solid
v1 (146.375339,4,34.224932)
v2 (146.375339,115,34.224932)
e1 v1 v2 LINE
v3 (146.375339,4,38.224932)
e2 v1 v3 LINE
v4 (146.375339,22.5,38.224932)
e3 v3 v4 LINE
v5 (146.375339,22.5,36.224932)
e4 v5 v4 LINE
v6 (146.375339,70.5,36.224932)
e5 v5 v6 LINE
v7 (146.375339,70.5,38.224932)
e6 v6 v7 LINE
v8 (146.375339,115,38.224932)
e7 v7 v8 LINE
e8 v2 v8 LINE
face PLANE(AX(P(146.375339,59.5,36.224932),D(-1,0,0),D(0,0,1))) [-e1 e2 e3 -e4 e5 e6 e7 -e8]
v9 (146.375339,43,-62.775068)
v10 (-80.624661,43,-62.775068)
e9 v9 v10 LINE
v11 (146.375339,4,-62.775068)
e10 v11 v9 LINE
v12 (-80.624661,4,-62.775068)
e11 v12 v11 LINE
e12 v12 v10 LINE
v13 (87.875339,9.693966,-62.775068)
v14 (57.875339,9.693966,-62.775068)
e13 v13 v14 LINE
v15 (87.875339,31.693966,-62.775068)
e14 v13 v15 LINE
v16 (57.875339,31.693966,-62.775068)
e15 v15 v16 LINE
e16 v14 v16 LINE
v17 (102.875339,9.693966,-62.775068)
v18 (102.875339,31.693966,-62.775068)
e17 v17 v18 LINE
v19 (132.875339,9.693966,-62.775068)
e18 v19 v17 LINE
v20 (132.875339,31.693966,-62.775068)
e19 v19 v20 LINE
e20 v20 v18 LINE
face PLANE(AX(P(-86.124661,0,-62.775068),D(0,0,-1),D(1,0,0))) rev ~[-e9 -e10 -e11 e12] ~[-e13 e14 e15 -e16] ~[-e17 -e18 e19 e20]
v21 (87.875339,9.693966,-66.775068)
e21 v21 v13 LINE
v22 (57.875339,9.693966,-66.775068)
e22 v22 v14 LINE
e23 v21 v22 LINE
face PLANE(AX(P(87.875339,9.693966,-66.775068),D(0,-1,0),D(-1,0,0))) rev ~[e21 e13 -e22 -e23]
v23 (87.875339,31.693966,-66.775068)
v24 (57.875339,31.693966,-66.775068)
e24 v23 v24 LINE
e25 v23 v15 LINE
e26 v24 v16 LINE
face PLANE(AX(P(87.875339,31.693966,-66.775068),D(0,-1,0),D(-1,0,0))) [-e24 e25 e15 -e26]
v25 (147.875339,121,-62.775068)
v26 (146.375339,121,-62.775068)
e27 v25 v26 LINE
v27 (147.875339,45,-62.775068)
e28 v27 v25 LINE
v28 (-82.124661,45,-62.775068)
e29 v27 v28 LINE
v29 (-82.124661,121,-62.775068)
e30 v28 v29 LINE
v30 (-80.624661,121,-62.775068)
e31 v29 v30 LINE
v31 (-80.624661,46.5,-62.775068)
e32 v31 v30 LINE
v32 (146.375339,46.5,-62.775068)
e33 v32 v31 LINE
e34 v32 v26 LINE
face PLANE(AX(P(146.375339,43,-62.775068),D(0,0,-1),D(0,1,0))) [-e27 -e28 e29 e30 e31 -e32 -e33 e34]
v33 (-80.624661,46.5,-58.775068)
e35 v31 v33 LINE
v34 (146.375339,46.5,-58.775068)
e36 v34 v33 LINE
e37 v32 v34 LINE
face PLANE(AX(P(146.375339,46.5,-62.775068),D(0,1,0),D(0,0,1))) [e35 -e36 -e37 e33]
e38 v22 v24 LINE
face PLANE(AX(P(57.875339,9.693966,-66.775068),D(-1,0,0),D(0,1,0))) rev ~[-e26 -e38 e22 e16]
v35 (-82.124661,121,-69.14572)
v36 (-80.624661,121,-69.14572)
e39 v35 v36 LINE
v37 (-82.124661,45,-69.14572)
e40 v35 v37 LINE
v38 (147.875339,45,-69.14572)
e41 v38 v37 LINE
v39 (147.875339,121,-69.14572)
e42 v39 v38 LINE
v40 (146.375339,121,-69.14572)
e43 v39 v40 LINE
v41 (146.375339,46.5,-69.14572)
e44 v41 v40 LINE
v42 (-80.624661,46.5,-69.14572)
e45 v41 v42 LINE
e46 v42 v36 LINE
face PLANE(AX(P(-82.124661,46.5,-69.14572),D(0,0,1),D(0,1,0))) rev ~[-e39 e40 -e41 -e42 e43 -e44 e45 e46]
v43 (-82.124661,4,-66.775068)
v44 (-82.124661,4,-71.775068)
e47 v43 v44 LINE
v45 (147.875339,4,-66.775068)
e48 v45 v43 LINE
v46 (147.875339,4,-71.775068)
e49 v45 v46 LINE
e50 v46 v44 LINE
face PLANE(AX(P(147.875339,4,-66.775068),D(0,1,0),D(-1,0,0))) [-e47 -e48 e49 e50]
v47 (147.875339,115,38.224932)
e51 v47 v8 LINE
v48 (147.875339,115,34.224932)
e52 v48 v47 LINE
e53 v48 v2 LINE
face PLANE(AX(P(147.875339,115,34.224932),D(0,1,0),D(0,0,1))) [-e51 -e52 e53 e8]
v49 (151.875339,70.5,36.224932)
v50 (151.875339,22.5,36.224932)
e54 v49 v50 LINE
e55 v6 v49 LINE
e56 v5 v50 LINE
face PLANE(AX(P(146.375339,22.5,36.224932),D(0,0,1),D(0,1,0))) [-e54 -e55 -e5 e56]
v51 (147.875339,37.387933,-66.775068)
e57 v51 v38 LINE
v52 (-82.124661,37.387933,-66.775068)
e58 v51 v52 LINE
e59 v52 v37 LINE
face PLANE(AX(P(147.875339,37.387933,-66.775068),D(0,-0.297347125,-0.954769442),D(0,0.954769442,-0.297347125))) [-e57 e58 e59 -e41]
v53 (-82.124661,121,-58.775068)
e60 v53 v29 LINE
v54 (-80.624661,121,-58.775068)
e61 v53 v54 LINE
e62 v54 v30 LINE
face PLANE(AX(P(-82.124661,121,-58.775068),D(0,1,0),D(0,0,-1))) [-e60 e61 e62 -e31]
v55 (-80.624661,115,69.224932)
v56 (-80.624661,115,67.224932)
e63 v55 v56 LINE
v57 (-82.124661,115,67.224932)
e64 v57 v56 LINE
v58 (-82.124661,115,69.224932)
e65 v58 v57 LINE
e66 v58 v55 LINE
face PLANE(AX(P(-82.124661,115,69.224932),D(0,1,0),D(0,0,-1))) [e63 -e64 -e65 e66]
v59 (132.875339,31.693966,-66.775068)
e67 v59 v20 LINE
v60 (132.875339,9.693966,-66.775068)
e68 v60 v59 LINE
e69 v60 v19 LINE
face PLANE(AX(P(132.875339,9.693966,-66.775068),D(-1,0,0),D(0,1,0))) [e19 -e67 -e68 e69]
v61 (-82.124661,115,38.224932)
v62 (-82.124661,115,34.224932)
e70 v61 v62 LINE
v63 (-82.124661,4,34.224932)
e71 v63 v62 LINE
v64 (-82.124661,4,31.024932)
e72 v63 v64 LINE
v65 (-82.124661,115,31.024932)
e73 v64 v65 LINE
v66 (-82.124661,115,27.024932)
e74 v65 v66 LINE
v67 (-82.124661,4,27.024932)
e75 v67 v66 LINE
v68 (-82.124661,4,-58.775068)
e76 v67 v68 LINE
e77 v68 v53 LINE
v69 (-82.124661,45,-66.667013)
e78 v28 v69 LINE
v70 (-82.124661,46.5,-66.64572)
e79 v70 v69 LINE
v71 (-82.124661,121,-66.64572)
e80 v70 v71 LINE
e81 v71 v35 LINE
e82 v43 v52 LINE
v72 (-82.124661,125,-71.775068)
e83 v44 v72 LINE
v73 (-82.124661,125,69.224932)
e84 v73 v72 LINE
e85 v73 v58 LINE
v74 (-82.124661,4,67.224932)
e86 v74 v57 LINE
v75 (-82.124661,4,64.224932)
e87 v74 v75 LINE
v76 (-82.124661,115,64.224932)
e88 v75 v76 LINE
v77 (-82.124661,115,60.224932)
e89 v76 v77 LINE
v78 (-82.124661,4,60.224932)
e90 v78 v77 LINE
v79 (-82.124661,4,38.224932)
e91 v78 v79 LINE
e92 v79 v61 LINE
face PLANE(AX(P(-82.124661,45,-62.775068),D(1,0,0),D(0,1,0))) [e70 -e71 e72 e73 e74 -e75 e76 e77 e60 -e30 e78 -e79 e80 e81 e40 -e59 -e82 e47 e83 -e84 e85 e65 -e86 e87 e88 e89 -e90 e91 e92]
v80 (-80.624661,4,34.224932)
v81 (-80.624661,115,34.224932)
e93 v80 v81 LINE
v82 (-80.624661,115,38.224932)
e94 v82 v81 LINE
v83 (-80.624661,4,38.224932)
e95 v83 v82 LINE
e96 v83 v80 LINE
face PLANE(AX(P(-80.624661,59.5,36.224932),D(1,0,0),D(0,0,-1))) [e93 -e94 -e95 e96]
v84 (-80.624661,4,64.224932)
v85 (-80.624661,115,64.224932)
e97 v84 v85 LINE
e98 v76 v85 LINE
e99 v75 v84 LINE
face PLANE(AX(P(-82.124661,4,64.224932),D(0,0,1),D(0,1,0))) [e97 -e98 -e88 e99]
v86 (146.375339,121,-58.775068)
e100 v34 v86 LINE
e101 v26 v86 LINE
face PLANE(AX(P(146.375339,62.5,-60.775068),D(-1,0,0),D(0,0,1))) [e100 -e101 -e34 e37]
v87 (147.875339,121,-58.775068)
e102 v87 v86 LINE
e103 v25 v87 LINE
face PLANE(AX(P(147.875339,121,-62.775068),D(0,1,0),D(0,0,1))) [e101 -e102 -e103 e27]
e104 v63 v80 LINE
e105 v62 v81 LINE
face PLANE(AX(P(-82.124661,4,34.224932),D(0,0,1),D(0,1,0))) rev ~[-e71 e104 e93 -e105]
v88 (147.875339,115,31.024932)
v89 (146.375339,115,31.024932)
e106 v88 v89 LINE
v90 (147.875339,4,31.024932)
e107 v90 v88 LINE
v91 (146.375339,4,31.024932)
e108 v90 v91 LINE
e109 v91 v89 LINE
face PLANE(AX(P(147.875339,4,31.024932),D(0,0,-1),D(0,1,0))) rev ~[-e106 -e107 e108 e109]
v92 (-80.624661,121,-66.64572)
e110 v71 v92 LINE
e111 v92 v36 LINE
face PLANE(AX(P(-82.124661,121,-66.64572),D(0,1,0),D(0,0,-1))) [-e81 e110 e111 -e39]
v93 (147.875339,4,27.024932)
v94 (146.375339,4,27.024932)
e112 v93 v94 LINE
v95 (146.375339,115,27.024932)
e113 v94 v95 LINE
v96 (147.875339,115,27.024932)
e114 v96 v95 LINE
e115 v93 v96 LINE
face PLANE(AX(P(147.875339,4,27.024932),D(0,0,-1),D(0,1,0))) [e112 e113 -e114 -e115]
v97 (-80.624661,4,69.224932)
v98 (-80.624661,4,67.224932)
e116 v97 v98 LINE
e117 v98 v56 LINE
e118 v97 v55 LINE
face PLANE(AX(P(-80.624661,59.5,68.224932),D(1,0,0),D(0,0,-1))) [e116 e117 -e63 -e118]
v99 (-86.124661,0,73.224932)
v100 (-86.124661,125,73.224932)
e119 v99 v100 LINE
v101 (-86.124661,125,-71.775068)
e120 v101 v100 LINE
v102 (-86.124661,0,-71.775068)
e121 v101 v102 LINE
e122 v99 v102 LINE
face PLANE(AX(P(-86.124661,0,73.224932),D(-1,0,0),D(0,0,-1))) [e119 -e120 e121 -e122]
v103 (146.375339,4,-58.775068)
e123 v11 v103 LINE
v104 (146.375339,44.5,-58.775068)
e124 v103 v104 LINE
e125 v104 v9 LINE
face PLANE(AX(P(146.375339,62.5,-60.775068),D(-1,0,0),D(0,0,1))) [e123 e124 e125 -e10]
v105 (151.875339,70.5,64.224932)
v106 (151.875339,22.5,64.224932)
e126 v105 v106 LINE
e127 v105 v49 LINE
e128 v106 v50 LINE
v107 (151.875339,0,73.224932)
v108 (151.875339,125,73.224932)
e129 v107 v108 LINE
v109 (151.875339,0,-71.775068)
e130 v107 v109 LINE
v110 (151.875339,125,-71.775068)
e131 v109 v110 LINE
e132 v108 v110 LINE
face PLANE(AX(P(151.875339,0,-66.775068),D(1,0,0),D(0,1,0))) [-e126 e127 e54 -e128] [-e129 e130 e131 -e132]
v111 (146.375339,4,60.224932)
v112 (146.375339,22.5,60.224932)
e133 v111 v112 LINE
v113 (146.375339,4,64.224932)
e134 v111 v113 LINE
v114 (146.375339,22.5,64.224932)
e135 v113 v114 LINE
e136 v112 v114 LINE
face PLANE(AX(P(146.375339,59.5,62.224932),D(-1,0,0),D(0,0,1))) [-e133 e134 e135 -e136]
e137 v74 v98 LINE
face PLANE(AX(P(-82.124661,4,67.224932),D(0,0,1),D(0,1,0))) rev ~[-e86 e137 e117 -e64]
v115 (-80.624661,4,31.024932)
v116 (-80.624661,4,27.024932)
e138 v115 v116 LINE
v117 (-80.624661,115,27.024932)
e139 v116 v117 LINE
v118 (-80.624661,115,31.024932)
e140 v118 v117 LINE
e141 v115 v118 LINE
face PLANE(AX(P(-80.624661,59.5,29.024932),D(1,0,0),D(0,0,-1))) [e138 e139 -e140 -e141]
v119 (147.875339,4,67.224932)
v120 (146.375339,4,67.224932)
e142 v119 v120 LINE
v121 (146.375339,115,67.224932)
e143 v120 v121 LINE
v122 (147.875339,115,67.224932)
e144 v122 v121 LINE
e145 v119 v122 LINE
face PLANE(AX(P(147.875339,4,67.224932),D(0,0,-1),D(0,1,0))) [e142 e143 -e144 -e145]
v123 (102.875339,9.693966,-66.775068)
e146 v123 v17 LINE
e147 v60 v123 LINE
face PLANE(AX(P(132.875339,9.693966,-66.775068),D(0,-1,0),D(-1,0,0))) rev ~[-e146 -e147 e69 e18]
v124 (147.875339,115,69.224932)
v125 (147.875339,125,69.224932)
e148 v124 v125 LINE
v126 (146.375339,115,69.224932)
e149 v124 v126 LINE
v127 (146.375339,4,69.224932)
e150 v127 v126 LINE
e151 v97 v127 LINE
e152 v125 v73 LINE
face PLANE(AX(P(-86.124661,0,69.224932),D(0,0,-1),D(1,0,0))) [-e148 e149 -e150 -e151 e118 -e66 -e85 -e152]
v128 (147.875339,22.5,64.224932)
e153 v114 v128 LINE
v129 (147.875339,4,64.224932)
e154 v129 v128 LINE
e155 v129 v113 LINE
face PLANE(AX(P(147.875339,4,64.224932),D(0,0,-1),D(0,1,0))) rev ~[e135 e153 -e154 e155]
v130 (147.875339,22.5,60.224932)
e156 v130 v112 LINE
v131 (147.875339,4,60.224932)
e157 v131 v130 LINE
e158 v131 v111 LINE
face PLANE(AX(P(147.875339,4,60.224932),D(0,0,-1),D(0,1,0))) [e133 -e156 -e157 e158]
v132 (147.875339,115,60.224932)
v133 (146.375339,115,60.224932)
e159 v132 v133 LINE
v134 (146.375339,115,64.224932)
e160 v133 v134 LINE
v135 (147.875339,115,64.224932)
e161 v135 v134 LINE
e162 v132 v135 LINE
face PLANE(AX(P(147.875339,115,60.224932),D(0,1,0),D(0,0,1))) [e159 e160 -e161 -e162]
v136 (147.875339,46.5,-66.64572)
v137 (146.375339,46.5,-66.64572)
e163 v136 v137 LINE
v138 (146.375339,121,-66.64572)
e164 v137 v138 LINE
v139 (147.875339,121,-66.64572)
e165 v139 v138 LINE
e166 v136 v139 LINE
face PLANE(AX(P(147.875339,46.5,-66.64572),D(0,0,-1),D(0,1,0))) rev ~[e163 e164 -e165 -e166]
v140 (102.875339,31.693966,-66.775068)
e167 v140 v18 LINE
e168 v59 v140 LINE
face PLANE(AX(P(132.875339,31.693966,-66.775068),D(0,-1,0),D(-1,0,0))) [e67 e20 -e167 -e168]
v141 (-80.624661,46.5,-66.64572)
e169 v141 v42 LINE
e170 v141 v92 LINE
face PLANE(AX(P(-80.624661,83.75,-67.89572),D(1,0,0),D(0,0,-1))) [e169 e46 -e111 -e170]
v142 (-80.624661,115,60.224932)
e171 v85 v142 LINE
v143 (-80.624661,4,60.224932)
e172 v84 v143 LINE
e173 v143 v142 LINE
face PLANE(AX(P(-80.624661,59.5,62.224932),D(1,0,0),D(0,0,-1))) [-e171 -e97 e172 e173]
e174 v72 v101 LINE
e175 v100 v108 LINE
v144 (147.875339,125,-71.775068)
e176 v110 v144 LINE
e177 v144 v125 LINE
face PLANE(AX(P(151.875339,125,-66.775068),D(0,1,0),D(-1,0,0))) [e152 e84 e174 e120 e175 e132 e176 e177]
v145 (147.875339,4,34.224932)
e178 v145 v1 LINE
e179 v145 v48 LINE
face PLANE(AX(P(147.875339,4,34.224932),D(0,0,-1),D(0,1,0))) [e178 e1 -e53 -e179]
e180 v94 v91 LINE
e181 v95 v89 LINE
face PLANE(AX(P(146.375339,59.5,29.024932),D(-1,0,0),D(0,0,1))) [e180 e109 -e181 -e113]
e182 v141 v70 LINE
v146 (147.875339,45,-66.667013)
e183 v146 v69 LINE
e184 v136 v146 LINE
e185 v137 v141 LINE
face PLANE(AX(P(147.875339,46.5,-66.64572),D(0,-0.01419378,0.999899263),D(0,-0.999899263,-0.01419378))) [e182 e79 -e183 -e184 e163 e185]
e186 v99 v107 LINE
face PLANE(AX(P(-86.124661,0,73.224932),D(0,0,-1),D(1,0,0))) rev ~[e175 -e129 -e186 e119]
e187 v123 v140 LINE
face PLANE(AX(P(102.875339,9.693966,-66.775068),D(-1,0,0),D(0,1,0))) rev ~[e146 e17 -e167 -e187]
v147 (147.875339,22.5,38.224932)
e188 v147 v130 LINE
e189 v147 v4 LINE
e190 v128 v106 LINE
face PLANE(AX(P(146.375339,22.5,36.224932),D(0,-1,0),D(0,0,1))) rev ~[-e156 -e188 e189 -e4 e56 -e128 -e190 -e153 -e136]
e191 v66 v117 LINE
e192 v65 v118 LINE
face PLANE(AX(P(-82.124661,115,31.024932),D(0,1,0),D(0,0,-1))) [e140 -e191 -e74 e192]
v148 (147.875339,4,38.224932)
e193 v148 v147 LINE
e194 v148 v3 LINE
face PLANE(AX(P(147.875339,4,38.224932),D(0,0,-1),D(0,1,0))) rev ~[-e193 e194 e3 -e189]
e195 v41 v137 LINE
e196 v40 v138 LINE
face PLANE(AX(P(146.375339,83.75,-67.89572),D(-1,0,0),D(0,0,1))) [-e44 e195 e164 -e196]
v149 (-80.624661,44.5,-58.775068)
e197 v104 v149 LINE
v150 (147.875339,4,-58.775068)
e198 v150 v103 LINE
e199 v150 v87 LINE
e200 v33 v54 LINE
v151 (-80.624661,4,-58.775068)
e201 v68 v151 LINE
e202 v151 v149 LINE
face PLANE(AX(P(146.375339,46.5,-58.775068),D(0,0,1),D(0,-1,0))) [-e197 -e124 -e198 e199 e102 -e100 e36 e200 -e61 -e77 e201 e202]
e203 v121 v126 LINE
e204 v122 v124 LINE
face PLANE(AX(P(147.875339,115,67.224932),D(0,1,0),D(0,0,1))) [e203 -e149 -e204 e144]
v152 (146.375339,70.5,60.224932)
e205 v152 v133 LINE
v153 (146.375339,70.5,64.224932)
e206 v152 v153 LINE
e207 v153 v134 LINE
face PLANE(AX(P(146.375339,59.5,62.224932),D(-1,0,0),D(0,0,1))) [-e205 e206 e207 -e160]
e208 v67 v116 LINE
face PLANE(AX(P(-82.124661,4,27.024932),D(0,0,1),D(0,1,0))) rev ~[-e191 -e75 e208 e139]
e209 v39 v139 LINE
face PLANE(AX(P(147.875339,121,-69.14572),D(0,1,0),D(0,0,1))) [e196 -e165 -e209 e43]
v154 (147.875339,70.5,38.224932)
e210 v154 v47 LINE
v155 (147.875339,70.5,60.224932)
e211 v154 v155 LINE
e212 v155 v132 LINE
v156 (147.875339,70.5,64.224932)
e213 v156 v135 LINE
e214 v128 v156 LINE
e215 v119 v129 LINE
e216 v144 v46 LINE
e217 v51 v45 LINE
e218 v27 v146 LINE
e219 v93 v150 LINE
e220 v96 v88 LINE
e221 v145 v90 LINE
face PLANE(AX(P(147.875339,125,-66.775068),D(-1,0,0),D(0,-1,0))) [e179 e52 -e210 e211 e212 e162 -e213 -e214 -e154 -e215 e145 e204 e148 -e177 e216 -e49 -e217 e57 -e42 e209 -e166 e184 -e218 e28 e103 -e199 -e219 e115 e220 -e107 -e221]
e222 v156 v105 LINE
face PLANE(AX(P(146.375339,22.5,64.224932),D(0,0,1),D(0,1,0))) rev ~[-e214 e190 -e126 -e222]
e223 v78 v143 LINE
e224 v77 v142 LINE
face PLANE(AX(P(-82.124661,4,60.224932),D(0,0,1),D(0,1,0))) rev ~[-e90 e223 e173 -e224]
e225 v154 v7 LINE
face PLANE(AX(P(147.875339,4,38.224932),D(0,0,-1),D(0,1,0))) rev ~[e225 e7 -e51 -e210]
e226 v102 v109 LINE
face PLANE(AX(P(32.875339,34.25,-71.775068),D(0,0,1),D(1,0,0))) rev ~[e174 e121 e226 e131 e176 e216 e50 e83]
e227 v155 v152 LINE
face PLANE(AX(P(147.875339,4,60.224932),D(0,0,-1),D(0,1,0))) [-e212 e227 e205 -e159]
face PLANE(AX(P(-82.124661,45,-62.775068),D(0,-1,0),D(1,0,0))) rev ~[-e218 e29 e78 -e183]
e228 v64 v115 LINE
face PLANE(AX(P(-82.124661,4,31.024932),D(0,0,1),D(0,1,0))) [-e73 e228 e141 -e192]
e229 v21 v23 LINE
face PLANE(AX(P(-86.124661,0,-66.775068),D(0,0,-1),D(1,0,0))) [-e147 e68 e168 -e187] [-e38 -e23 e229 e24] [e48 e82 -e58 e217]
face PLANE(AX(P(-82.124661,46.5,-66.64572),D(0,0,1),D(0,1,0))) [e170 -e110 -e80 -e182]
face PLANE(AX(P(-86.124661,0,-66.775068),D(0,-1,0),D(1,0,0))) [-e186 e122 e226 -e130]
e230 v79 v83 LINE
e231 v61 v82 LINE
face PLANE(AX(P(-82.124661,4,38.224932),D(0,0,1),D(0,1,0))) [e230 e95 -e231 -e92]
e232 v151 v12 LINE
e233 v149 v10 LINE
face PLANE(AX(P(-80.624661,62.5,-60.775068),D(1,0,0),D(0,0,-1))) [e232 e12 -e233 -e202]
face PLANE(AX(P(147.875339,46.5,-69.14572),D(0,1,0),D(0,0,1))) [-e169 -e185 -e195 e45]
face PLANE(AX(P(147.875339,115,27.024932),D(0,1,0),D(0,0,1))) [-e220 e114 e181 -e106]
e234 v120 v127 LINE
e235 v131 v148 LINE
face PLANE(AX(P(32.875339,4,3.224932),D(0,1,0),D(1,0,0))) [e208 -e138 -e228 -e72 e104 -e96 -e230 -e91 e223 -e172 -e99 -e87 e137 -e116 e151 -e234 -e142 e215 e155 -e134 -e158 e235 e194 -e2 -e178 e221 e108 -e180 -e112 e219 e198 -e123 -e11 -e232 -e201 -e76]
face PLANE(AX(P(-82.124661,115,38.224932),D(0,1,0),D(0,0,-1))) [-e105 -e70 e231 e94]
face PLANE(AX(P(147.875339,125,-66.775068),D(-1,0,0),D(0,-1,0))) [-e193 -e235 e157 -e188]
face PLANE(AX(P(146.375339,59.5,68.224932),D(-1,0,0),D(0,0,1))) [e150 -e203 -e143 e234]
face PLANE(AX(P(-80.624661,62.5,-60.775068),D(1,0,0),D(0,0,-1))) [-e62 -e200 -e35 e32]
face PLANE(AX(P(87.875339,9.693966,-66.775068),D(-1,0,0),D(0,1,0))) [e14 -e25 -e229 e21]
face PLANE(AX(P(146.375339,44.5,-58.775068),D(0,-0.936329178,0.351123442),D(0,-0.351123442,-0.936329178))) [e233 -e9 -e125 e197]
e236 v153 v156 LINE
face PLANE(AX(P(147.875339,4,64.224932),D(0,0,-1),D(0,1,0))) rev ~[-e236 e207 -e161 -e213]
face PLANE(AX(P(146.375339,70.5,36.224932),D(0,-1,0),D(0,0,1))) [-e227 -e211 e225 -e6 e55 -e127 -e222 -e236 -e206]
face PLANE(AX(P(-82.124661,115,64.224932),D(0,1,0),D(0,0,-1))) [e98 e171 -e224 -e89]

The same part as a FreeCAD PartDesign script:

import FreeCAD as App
import Part
import Sketcher

V = App.Vector
Q = App.Units.Quantity


def faces_at(feature, points):
    """Names of the faces that lie closest to the given points."""
    faces = feature.Shape.Faces
    near = lambda p: min(range(len(faces)), key=lambda i: faces[i].distToShape(Part.Vertex(*p))[0])
    return sorted({f"Face{near(p) + 1}" for p in points})


def add_polygon(sketch, points):
    """Adds a closed chain of lines whose ends are joined by coincident constraints."""
    first, n = sketch.GeometryCount, len(points)
    for a, b in zip(points, points[1:] + points[:1]):
        sketch.addGeometry(Part.LineSegment(App.Vector(*a, 0), App.Vector(*b, 0)), False)
    for i in range(n):
        sketch.addConstraint(Sketcher.Constraint("Coincident", first + i, 2, first + (i + 1) % n, 1))

doc = App.newDocument("Part")
params = doc.addObject("Spreadsheet::Sheet", "Params")
for row, (alias, value) in enumerate([
    ("sketch1_width", "238 mm"),
    ("sketch1_height", "140 mm"),
    ("pad1_length", "125 mm"),
    ("thickness_wall", "4 mm"),
    ("sketch2_width", "230 mm"),
    ("sketch2_height", "80 mm"),
    ("pocket1_length", "120 mm"),
    ("sketch3_width", "117 mm"),
    ("sketch3_height", "4 mm"),
    ("pad2_length", "1.5 mm"),
    ("sketch4_width", "117 mm"),
    ("sketch4_height", "4 mm"),
    ("pad3_length", "1.5 mm"),
    ("sketch5_width", "4 mm"),
    ("sketch5_width2", "238 mm"),
    ("sketch5_height", "125 mm"),
    ("sketch5_height2", "121 mm"),
    ("pad4_length", "5 mm"),
    ("sketch6_width", "1.5 mm"),
    ("sketch6_height", "2.5 mm"),
    ("pad5_length", "230 mm"),
    ("sketch7_width", "2 mm"),
    ("sketch7_height", "4 mm"),
    ("sketch7_width2", "3.5 mm"),
    ("pad6_length", "227 mm"),
    ("sketch8_width", "74.5 mm"),
    ("sketch8_height", "2.5 mm"),
    ("pad7_length", "1.5 mm"),
    ("sketch9_width", "74.5 mm"),
    ("sketch9_height", "2.5 mm"),
    ("pad8_length", "1.5 mm"),
    ("sketch10_width", "111 mm"),
    ("sketch10_height", "4 mm"),
    ("pad9_length", "1.5 mm"),
    ("sketch11_width", "111 mm"),
    ("sketch11_height", "2 mm"),
    ("sketch11_height2", "4 mm"),
    ("pad10_length", "1.5 mm"),
    ("sketch12_width", "48 mm"),
    ("sketch12_height", "28 mm"),
    ("pocket2_length", "18 mm"),
    ("sketch13_width", "30 mm"),
    ("sketch13_height", "22 mm"),
    ("pocket3_length", "18 mm"),
    ("sketch14_width", "111 mm"),
    ("sketch14_height", "2 mm"),
    ("pad11_length", "1.5 mm"),
    ("sketch15_width", "111 mm"),
    ("sketch15_height", "4 mm"),
    ("pad12_length", "1.5 mm"),
    ("sketch16_width", "111 mm"),
    ("sketch16_height", "4 mm"),
    ("pad13_length", "1.5 mm"),
    ("sketch17_width", "111 mm"),
    ("sketch17_height", "4 mm"),
    ("pad14_length", "1.5 mm"),
], start=1):
    params.set(f"A{row}", alias)
    params.set(f"B{row}", "=" + value)
    params.setAlias(f"B{row}", alias)

body = doc.addObject("PartDesign::Body", "Body")

sketch1 = body.newObject("Sketcher::SketchObject", "Sketch")
sketch1.AttachmentSupport = (doc.getObject("XZ_Plane"), [""])
sketch1.MapMode = "FlatFace"
add_polygon(sketch1, [(-86, -67), (-86, 73), (152, 73), (152, -67)])
sketch1.addConstraint(Sketcher.Constraint("Vertical", 0))
sketch1.addConstraint(Sketcher.Constraint("Horizontal", 1))
sketch1.addConstraint(Sketcher.Constraint("Vertical", 2))
sketch1.addConstraint(Sketcher.Constraint("Horizontal", 3))
sketch1.addConstraint(Sketcher.Constraint("DistanceX", 1, 1, 1, 2, Q("238 mm")))
sketch1.addConstraint(Sketcher.Constraint("DistanceY", 0, 1, 0, 2, Q("140 mm")))
sketch1.addConstraint(Sketcher.Constraint("DistanceX", 0, 2, -1, 1, Q("86.124661 mm")))
sketch1.addConstraint(Sketcher.Constraint("DistanceY", -1, 1, 0, 2, Q("73.224932 mm")))
sketch1.setExpression("Constraints[8]", "Params.sketch1_width")
sketch1.setExpression("Constraints[9]", "Params.sketch1_height")
pad1 = body.newObject("PartDesign::Pad", "Pad")
pad1.Profile = sketch1
pad1.setExpression("Length", "Params.pad1_length")
pad1.Reversed = True
doc.recompute()

thickness = body.newObject("PartDesign::Thickness", "Thickness")
thickness.Base = (pad1, faces_at(pad1, [(32.875, 125, 3.225)]))
thickness.setExpression("Value", "Params.thickness_wall")
thickness.Reversed = True
thickness.Join = "Intersection"

sketch2 = body.newObject("Sketcher::SketchObject", "Sketch001")
sketch2.AttachmentSupport = (doc.getObject("XY_Plane"), [""])
sketch2.MapMode = "FlatFace"
sketch2.AttachmentOffset = App.Placement(V(0, 0, -62.775068), App.Rotation())
add_polygon(sketch2, [(-82, 125), (-82, 45), (148, 45), (148, 125)])
sketch2.addConstraint(Sketcher.Constraint("Vertical", 0))
sketch2.addConstraint(Sketcher.Constraint("Horizontal", 1))
sketch2.addConstraint(Sketcher.Constraint("Vertical", 2))
sketch2.addConstraint(Sketcher.Constraint("Horizontal", 3))
sketch2.addConstraint(Sketcher.Constraint("DistanceX", 1, 1, 1, 2, Q("230 mm")))
sketch2.addConstraint(Sketcher.Constraint("DistanceY", 0, 2, 0, 1, Q("80 mm")))
sketch2.addConstraint(Sketcher.Constraint("DistanceY", -1, 1, 0, 2, Q("45 mm")))
sketch2.addConstraint(Sketcher.Constraint("DistanceX", 0, 2, -1, 1, Q("82.124661 mm")))
sketch2.setExpression("Constraints[8]", "Params.sketch2_width")
sketch2.setExpression("Constraints[9]", "Params.sketch2_height")
pocket1 = body.newObject("PartDesign::Pocket", "Pocket")
pocket1.Profile = sketch2
pocket1.setExpression("Length", "Params.pocket1_length")

sketch3 = body.newObject("Sketcher::SketchObject", "Sketch002")
sketch3.AttachmentSupport = (doc.getObject("YZ_Plane"), [""])
sketch3.MapMode = "FlatFace"
sketch3.AttachmentOffset = App.Placement(V(0, 0, 147.875339), App.Rotation())
add_polygon(sketch3, [(121, -62.8), (4, -62.8), (4, -58.8), (121, -58.8)])
sketch3.addConstraint(Sketcher.Constraint("Horizontal", 0))
sketch3.addConstraint(Sketcher.Constraint("Vertical", 1))
sketch3.addConstraint(Sketcher.Constraint("Horizontal", 2))
sketch3.addConstraint(Sketcher.Constraint("Vertical", 3))
sketch3.addConstraint(Sketcher.Constraint("DistanceX", 0, 2, 0, 1, Q("117 mm")))
sketch3.addConstraint(Sketcher.Constraint("DistanceY", 1, 1, 1, 2, Q("4 mm")))
sketch3.addConstraint(Sketcher.Constraint("DistanceX", -1, 1, 0, 2, Q("4 mm")))
sketch3.addConstraint(Sketcher.Constraint("DistanceY", 0, 2, -1, 1, Q("62.775068 mm")))
sketch3.setExpression("Constraints[8]", "Params.sketch3_width")
sketch3.setExpression("Constraints[9]", "Params.sketch3_height")
pad2 = body.newObject("PartDesign::Pad", "Pad001")
pad2.Profile = sketch3
pad2.setExpression("Length", "Params.pad2_length")
pad2.Reversed = True

sketch4 = body.newObject("Sketcher::SketchObject", "Sketch003")
sketch4.AttachmentSupport = (doc.getObject("YZ_Plane"), [""])
sketch4.MapMode = "FlatFace"
sketch4.AttachmentOffset = App.Placement(V(0, 0, -82.124661), App.Rotation())
add_polygon(sketch4, [(121, -58.8), (4, -58.8), (4, -62.8), (121, -62.8)])
sketch4.addConstraint(Sketcher.Constraint("Horizontal", 0))
sketch4.addConstraint(Sketcher.Constraint("Vertical", 1))
sketch4.addConstraint(Sketcher.Constraint("Horizontal", 2))
sketch4.addConstraint(Sketcher.Constraint("Vertical", 3))
sketch4.addConstraint(Sketcher.Constraint("DistanceX", 0, 2, 0, 1, Q("117 mm")))
sketch4.addConstraint(Sketcher.Constraint("DistanceY", 1, 2, 1, 1, Q("4 mm")))
sketch4.addConstraint(Sketcher.Constraint("DistanceX", -1, 1, 0, 2, Q("4 mm")))
sketch4.addConstraint(Sketcher.Constraint("DistanceY", 0, 2, -1, 1, Q("58.775068 mm")))
sketch4.setExpression("Constraints[8]", "Params.sketch4_width")
sketch4.setExpression("Constraints[9]", "Params.sketch4_height")
pad3 = body.newObject("PartDesign::Pad", "Pad002")
pad3.Profile = sketch4
pad3.setExpression("Length", "Params.pad3_length")

sketch5 = body.newObject("Sketcher::SketchObject", "Sketch004")
sketch5.AttachmentSupport = (doc.getObject("XY_Plane"), [""])
sketch5.MapMode = "FlatFace"
sketch5.AttachmentOffset = App.Placement(V(0, 0, -66.775068), App.Rotation())
add_polygon(sketch5, [(147.9, 125), (151.9, 125), (151.9, 0), (-86.1, 0), (-86.1, 125), (-82.1, 125), (-82.1, 4), (147.9, 4)])
sketch5.addConstraint(Sketcher.Constraint("Horizontal", 0))
sketch5.addConstraint(Sketcher.Constraint("Vertical", 1))
sketch5.addConstraint(Sketcher.Constraint("Horizontal", 2))
sketch5.addConstraint(Sketcher.Constraint("Vertical", 3))
sketch5.addConstraint(Sketcher.Constraint("Horizontal", 4))
sketch5.addConstraint(Sketcher.Constraint("Vertical", 5))
sketch5.addConstraint(Sketcher.Constraint("Horizontal", 6))
sketch5.addConstraint(Sketcher.Constraint("Vertical", 7))
sketch5.addConstraint(Sketcher.Constraint("PointOnObject", 1, 2, -1))
sketch5.addConstraint(Sketcher.Constraint("Horizontal", 0, 2, 3, 2))
sketch5.addConstraint(Sketcher.Constraint("Equal", 0, 4))
sketch5.addConstraint(Sketcher.Constraint("DistanceX", 0, 1, 0, 2, Q("4 mm")))
sketch5.addConstraint(Sketcher.Constraint("DistanceX", 2, 2, 2, 1, Q("238 mm")))
sketch5.addConstraint(Sketcher.Constraint("DistanceY", 1, 2, 1, 1, Q("125 mm")))
sketch5.addConstraint(Sketcher.Constraint("DistanceY", 5, 2, 5, 1, Q("121 mm")))
sketch5.addConstraint(Sketcher.Constraint("DistanceX", -1, 1, 0, 2, Q("151.875339 mm")))
sketch5.setExpression("Constraints[19]", "Params.sketch5_width")
sketch5.setExpression("Constraints[20]", "Params.sketch5_width2")
sketch5.setExpression("Constraints[21]", "Params.sketch5_height")
sketch5.setExpression("Constraints[22]", "Params.sketch5_height2")
pad4 = body.newObject("PartDesign::Pad", "Pad003")
pad4.Profile = sketch5
pad4.setExpression("Length", "Params.pad4_length")
pad4.Reversed = True

sketch6 = body.newObject("Sketcher::SketchObject", "Sketch005")
sketch6.AttachmentSupport = (doc.getObject("YZ_Plane"), [""])
sketch6.MapMode = "FlatFace"
sketch6.AttachmentOffset = App.Placement(V(0, 0, 147.875339), App.Rotation())
add_polygon(sketch6, [(37.4, -66.8), (46.5, -66.6), (46.5, -69.1), (45, -69.1)])
sketch6.addConstraint(Sketcher.Constraint("Vertical", 1))
sketch6.addConstraint(Sketcher.Constraint("Horizontal", 2))
sketch6.addConstraint(Sketcher.Constraint("DistanceX", 2, 2, 2, 1, Q("1.5 mm")))
sketch6.addConstraint(Sketcher.Constraint("DistanceY", 1, 2, 1, 1, Q("2.5 mm")))
sketch6.addConstraint(Sketcher.Constraint("DistanceX", -1, 1, 2, 2, Q("45 mm")))
sketch6.addConstraint(Sketcher.Constraint("DistanceY", 0, 2, -1, 1, Q("66.64572 mm")))
sketch6.addConstraint(Sketcher.Constraint("Distance", 0, Q("9.112985 mm")))
sketch6.addConstraint(Sketcher.Constraint("Distance", 3, Q("7.972676 mm")))
sketch6.setExpression("Constraints[6]", "Params.sketch6_width")
sketch6.setExpression("Constraints[7]", "Params.sketch6_height")
pad5 = body.newObject("PartDesign::Pad", "Pad004")
pad5.Profile = sketch6
pad5.setExpression("Length", "Params.pad5_length")
pad5.Reversed = True

sketch7 = body.newObject("Sketcher::SketchObject", "Sketch006")
sketch7.AttachmentSupport = (doc.getObject("YZ_Plane"), [""])
sketch7.MapMode = "FlatFace"
sketch7.AttachmentOffset = App.Placement(V(0, 0, 146.375339), App.Rotation())
add_polygon(sketch7, [(46.5, -58.8), (46.5, -62.8), (43, -62.8), (44.5, -58.8)])
sketch7.addConstraint(Sketcher.Constraint("Vertical", 0))
sketch7.addConstraint(Sketcher.Constraint("Horizontal", 1))
sketch7.addConstraint(Sketcher.Constraint("Horizontal", 3))
sketch7.addConstraint(Sketcher.Constraint("DistanceX", 3, 1, 3, 2, Q("2 mm")))
sketch7.addConstraint(Sketcher.Constraint("DistanceY", 0, 2, 0, 1, Q("4 mm")))
sketch7.addConstraint(Sketcher.Constraint("DistanceX", 1, 2, 1, 1, Q("3.5 mm")))
sketch7.addConstraint(Sketcher.Constraint("DistanceX", -1, 1, 1, 2, Q("43 mm")))
sketch7.addConstraint(Sketcher.Constraint("DistanceY", 0, 2, -1, 1, Q("62.775068 mm")))
sketch7.setExpression("Constraints[7]", "Params.sketch7_width")
sketch7.setExpression("Constraints[8]", "Params.sketch7_height")
sketch7.setExpression("Constraints[9]", "Params.sketch7_width2")
pad6 = body.newObject("PartDesign::Pad", "Pad005")
pad6.Profile = sketch7
pad6.setExpression("Length", "Params.pad6_length")
pad6.Reversed = True

sketch8 = body.newObject("Sketcher::SketchObject", "Sketch007")
sketch8.AttachmentSupport = (doc.getObject("YZ_Plane"), [""])
sketch8.MapMode = "FlatFace"
sketch8.AttachmentOffset = App.Placement(V(0, 0, 147.875339), App.Rotation())
add_polygon(sketch8, [(121, -69.1), (46.5, -69.1), (46.5, -66.6), (121, -66.6)])
sketch8.addConstraint(Sketcher.Constraint("Horizontal", 0))
sketch8.addConstraint(Sketcher.Constraint("Vertical", 1))
sketch8.addConstraint(Sketcher.Constraint("Horizontal", 2))
sketch8.addConstraint(Sketcher.Constraint("Vertical", 3))
sketch8.addConstraint(Sketcher.Constraint("DistanceX", 0, 2, 0, 1, Q("74.5 mm")))
sketch8.addConstraint(Sketcher.Constraint("DistanceY", 1, 1, 1, 2, Q("2.5 mm")))
sketch8.addConstraint(Sketcher.Constraint("DistanceX", -1, 1, 2, 2, Q("121 mm")))
sketch8.addConstraint(Sketcher.Constraint("DistanceY", 0, 2, -1, 1, Q("69.14572 mm")))
sketch8.setExpression("Constraints[8]", "Params.sketch8_width")
sketch8.setExpression("Constraints[9]", "Params.sketch8_height")
pad7 = body.newObject("PartDesign::Pad", "Pad006")
pad7.Profile = sketch8
pad7.setExpression("Length", "Params.pad7_length")
pad7.Reversed = True

sketch9 = body.newObject("Sketcher::SketchObject", "Sketch008")
sketch9.AttachmentSupport = (doc.getObject("YZ_Plane"), [""])
sketch9.MapMode = "FlatFace"
sketch9.AttachmentOffset = App.Placement(V(0, 0, -82.124661), App.Rotation())
add_polygon(sketch9, [(121, -66.6), (46.5, -66.6), (46.5, -69.1), (121, -69.1)])
sketch9.addConstraint(Sketcher.Constraint("Horizontal", 0))
sketch9.addConstraint(Sketcher.Constraint("Vertical", 1))
sketch9.addConstraint(Sketcher.Constraint("Horizontal", 2))
sketch9.addConstraint(Sketcher.Constraint("Vertical", 3))
sketch9.addConstraint(Sketcher.Constraint("DistanceX", 0, 2, 0, 1, Q("74.5 mm")))
sketch9.addConstraint(Sketcher.Constraint("DistanceY", 1, 2, 1, 1, Q("2.5 mm")))
sketch9.addConstraint(Sketcher.Constraint("DistanceX", -1, 1, 2, 2, Q("121 mm")))
sketch9.addConstraint(Sketcher.Constraint("DistanceY", 0, 2, -1, 1, Q("66.64572 mm")))
sketch9.setExpression("Constraints[8]", "Params.sketch9_width")
sketch9.setExpression("Constraints[9]", "Params.sketch9_height")
pad8 = body.newObject("PartDesign::Pad", "Pad007")
pad8.Profile = sketch9
pad8.setExpression("Length", "Params.pad8_length")

sketch10 = body.newObject("Sketcher::SketchObject", "Sketch009")
sketch10.AttachmentSupport = (doc.getObject("YZ_Plane"), [""])
sketch10.MapMode = "FlatFace"
sketch10.AttachmentOffset = App.Placement(V(0, 0, 147.875339), App.Rotation())
add_polygon(sketch10, [(115, 34.2), (4, 34.2), (4, 38.2), (115, 38.2)])
add_polygon(sketch10, [(115, 27), (4, 27), (4, 31), (115, 31)])
sketch10.addConstraint(Sketcher.Constraint("Horizontal", 0))
sketch10.addConstraint(Sketcher.Constraint("Vertical", 1))
sketch10.addConstraint(Sketcher.Constraint("Horizontal", 2))
sketch10.addConstraint(Sketcher.Constraint("Vertical", 3))
sketch10.addConstraint(Sketcher.Constraint("Horizontal", 4))
sketch10.addConstraint(Sketcher.Constraint("Vertical", 5))
sketch10.addConstraint(Sketcher.Constraint("Horizontal", 6))
sketch10.addConstraint(Sketcher.Constraint("Vertical", 7))
sketch10.addConstraint(Sketcher.Constraint("Vertical", 1, 2, 4, 2))
sketch10.addConstraint(Sketcher.Constraint("Vertical", 3, 2, 6, 2))
sketch10.addConstraint(Sketcher.Constraint("Equal", 3, 5))
sketch10.addConstraint(Sketcher.Constraint("DistanceX", 0, 2, 0, 1, Q("111 mm")))
sketch10.addConstraint(Sketcher.Constraint("DistanceY", 1, 1, 1, 2, Q("4 mm")))
sketch10.addConstraint(Sketcher.Constraint("DistanceX", -1, 1, 0, 2, Q("4 mm")))
sketch10.addConstraint(Sketcher.Constraint("DistanceY", 4, 2, 0, 2, Q("7.2 mm")))
sketch10.addConstraint(Sketcher.Constraint("DistanceY", -1, 1, 0, 2, Q("34.224932 mm")))
sketch10.setExpression("Constraints[19]", "Params.sketch10_width")
sketch10.setExpression("Constraints[20]", "Params.sketch10_height")
pad9 = body.newObject("PartDesign::Pad", "Pad008")
pad9.Profile = sketch10
pad9.setExpression("Length", "Params.pad9_length")
pad9.Reversed = True

sketch11 = body.newObject("Sketcher::SketchObject", "Sketch010")
sketch11.AttachmentSupport = (doc.getObject("YZ_Plane"), [""])
sketch11.MapMode = "FlatFace"
sketch11.AttachmentOffset = App.Placement(V(0, 0, 147.875339), App.Rotation())
add_polygon(sketch11, [(115, 67.2), (4, 67.2), (4, 69.2), (115, 69.2)])
add_polygon(sketch11, [(115, 60.2), (4, 60.2), (4, 64.2), (115, 64.2)])
sketch11.addConstraint(Sketcher.Constraint("Horizontal", 0))
sketch11.addConstraint(Sketcher.Constraint("Vertical", 1))
sketch11.addConstraint(Sketcher.Constraint("Horizontal", 2))
sketch11.addConstraint(Sketcher.Constraint("Vertical", 3))
sketch11.addConstraint(Sketcher.Constraint("Horizontal", 4))
sketch11.addConstraint(Sketcher.Constraint("Vertical", 5))
sketch11.addConstraint(Sketcher.Constraint("Horizontal", 6))
sketch11.addConstraint(Sketcher.Constraint("Vertical", 7))
sketch11.addConstraint(Sketcher.Constraint("Vertical", 1, 2, 4, 2))
sketch11.addConstraint(Sketcher.Constraint("Vertical", 3, 2, 6, 2))
sketch11.addConstraint(Sketcher.Constraint("DistanceX", 0, 2, 0, 1, Q("111 mm")))
sketch11.addConstraint(Sketcher.Constraint("DistanceY", 1, 1, 1, 2, Q("2 mm")))
sketch11.addConstraint(Sketcher.Constraint("DistanceY", 5, 1, 5, 2, Q("4 mm")))
sketch11.addConstraint(Sketcher.Constraint("DistanceX", -1, 1, 0, 2, Q("4 mm")))
sketch11.addConstraint(Sketcher.Constraint("DistanceY", 4, 2, 0, 2, Q("7 mm")))
sketch11.addConstraint(Sketcher.Constraint("DistanceY", -1, 1, 0, 2, Q("67.224932 mm")))
sketch11.setExpression("Constraints[18]", "Params.sketch11_width")
sketch11.setExpression("Constraints[19]", "Params.sketch11_height")
sketch11.setExpression("Constraints[20]", "Params.sketch11_height2")
pad10 = body.newObject("PartDesign::Pad", "Pad009")
pad10.Profile = sketch11
pad10.setExpression("Length", "Params.pad10_length")
pad10.Reversed = True

sketch12 = body.newObject("Sketcher::SketchObject", "Sketch011")
sketch12.AttachmentSupport = (doc.getObject("YZ_Plane"), [""])
sketch12.MapMode = "FlatFace"
sketch12.AttachmentOffset = App.Placement(V(0, 0, 146.375339), App.Rotation())
add_polygon(sketch12, [(70, 36), (22, 36), (22, 64), (70, 64)])
sketch12.addConstraint(Sketcher.Constraint("Horizontal", 0))
sketch12.addConstraint(Sketcher.Constraint("Vertical", 1))
sketch12.addConstraint(Sketcher.Constraint("Horizontal", 2))
sketch12.addConstraint(Sketcher.Constraint("Vertical", 3))
sketch12.addConstraint(Sketcher.Constraint("DistanceX", 0, 2, 0, 1, Q("48 mm")))
sketch12.addConstraint(Sketcher.Constraint("DistanceY", 1, 1, 1, 2, Q("28 mm")))
sketch12.addConstraint(Sketcher.Constraint("DistanceX", -1, 1, 0, 2, Q("22.5 mm")))
sketch12.addConstraint(Sketcher.Constraint("DistanceY", -1, 1, 0, 2, Q("36.224932 mm")))
sketch12.setExpression("Constraints[8]", "Params.sketch12_width")
sketch12.setExpression("Constraints[9]", "Params.sketch12_height")
pocket2 = body.newObject("PartDesign::Pocket", "Pocket001")
pocket2.Profile = sketch12
pocket2.setExpression("Length", "Params.pocket2_length")
pocket2.Reversed = True

sketch13 = body.newObject("Sketcher::SketchObject", "Sketch012")
sketch13.AttachmentSupport = (doc.getObject("XY_Plane"), [""])
sketch13.MapMode = "FlatFace"
sketch13.AttachmentOffset = App.Placement(V(0, 0, -66.775068), App.Rotation())
add_polygon(sketch13, [(133, 32), (133, 10), (103, 10), (103, 32)])
add_polygon(sketch13, [(88, 32), (88, 10), (58, 10), (58, 32)])
sketch13.addConstraint(Sketcher.Constraint("Vertical", 0))
sketch13.addConstraint(Sketcher.Constraint("Horizontal", 1))
sketch13.addConstraint(Sketcher.Constraint("Vertical", 2))
sketch13.addConstraint(Sketcher.Constraint("Horizontal", 3))
sketch13.addConstraint(Sketcher.Constraint("Vertical", 4))
sketch13.addConstraint(Sketcher.Constraint("Horizontal", 5))
sketch13.addConstraint(Sketcher.Constraint("Vertical", 6))
sketch13.addConstraint(Sketcher.Constraint("Horizontal", 7))
sketch13.addConstraint(Sketcher.Constraint("Horizontal", 1, 2, 4, 2))
sketch13.addConstraint(Sketcher.Constraint("Horizontal", 3, 2, 6, 2))
sketch13.addConstraint(Sketcher.Constraint("Equal", 3, 5))
sketch13.addConstraint(Sketcher.Constraint("DistanceX", 1, 2, 1, 1, Q("30 mm")))
sketch13.addConstraint(Sketcher.Constraint("DistanceY", 0, 2, 0, 1, Q("22 mm")))
sketch13.addConstraint(Sketcher.Constraint("DistanceX", 4, 2, 1, 2, Q("15 mm")))
sketch13.addConstraint(Sketcher.Constraint("DistanceX", -1, 1, 0, 2, Q("132.875339 mm")))
sketch13.addConstraint(Sketcher.Constraint("DistanceY", -1, 1, 0, 2, Q("9.693966 mm")))
sketch13.setExpression("Constraints[19]", "Params.sketch13_width")
sketch13.setExpression("Constraints[20]", "Params.sketch13_height")
pocket3 = body.newObject("PartDesign::Pocket", "Pocket002")
pocket3.Profile = sketch13
pocket3.setExpression("Length", "Params.pocket3_length")
pocket3.Reversed = True

sketch14 = body.newObject("Sketcher::SketchObject", "Sketch013")
sketch14.AttachmentSupport = (doc.getObject("YZ_Plane"), [""])
sketch14.MapMode = "FlatFace"
sketch14.AttachmentOffset = App.Placement(V(0, 0, -82.124661), App.Rotation())
add_polygon(sketch14, [(115, 69.2), (4, 69.2), (4, 67.2), (115, 67.2)])
sketch14.addConstraint(Sketcher.Constraint("Horizontal", 0))
sketch14.addConstraint(Sketcher.Constraint("Vertical", 1))
sketch14.addConstraint(Sketcher.Constraint("Horizontal", 2))
sketch14.addConstraint(Sketcher.Constraint("Vertical", 3))
sketch14.addConstraint(Sketcher.Constraint("DistanceX", 0, 2, 0, 1, Q("111 mm")))
sketch14.addConstraint(Sketcher.Constraint("DistanceY", 1, 2, 1, 1, Q("2 mm")))
sketch14.addConstraint(Sketcher.Constraint("DistanceX", -1, 1, 0, 2, Q("4 mm")))
sketch14.addConstraint(Sketcher.Constraint("DistanceY", -1, 1, 0, 2, Q("69.224932 mm")))
sketch14.setExpression("Constraints[8]", "Params.sketch14_width")
sketch14.setExpression("Constraints[9]", "Params.sketch14_height")
pad11 = body.newObject("PartDesign::Pad", "Pad010")
pad11.Profile = sketch14
pad11.setExpression("Length", "Params.pad11_length")

sketch15 = body.newObject("Sketcher::SketchObject", "Sketch014")
sketch15.AttachmentSupport = (doc.getObject("YZ_Plane"), [""])
sketch15.MapMode = "FlatFace"
sketch15.AttachmentOffset = App.Placement(V(0, 0, -82.124661), App.Rotation())
add_polygon(sketch15, [(115, 64.2), (4, 64.2), (4, 60.2), (115, 60.2)])
sketch15.addConstraint(Sketcher.Constraint("Horizontal", 0))
sketch15.addConstraint(Sketcher.Constraint("Vertical", 1))
sketch15.addConstraint(Sketcher.Constraint("Horizontal", 2))
sketch15.addConstraint(Sketcher.Constraint("Vertical", 3))
sketch15.addConstraint(Sketcher.Constraint("DistanceX", 0, 2, 0, 1, Q("111 mm")))
sketch15.addConstraint(Sketcher.Constraint("DistanceY", 1, 2, 1, 1, Q("4 mm")))
sketch15.addConstraint(Sketcher.Constraint("DistanceX", -1, 1, 0, 2, Q("4 mm")))
sketch15.addConstraint(Sketcher.Constraint("DistanceY", -1, 1, 0, 2, Q("64.224932 mm")))
sketch15.setExpression("Constraints[8]", "Params.sketch15_width")
sketch15.setExpression("Constraints[9]", "Params.sketch15_height")
pad12 = body.newObject("PartDesign::Pad", "Pad011")
pad12.Profile = sketch15
pad12.setExpression("Length", "Params.pad12_length")

sketch16 = body.newObject("Sketcher::SketchObject", "Sketch015")
sketch16.AttachmentSupport = (doc.getObject("YZ_Plane"), [""])
sketch16.MapMode = "FlatFace"
sketch16.AttachmentOffset = App.Placement(V(0, 0, -82.124661), App.Rotation())
add_polygon(sketch16, [(115, 38.2), (4, 38.2), (4, 34.2), (115, 34.2)])
sketch16.addConstraint(Sketcher.Constraint("Horizontal", 0))
sketch16.addConstraint(Sketcher.Constraint("Vertical", 1))
sketch16.addConstraint(Sketcher.Constraint("Horizontal", 2))
sketch16.addConstraint(Sketcher.Constraint("Vertical", 3))
sketch16.addConstraint(Sketcher.Constraint("DistanceX", 0, 2, 0, 1, Q("111 mm")))
sketch16.addConstraint(Sketcher.Constraint("DistanceY", 1, 2, 1, 1, Q("4 mm")))
sketch16.addConstraint(Sketcher.Constraint("DistanceX", -1, 1, 0, 2, Q("4 mm")))
sketch16.addConstraint(Sketcher.Constraint("DistanceY", -1, 1, 0, 2, Q("38.224932 mm")))
sketch16.setExpression("Constraints[8]", "Params.sketch16_width")
sketch16.setExpression("Constraints[9]", "Params.sketch16_height")
pad13 = body.newObject("PartDesign::Pad", "Pad012")
pad13.Profile = sketch16
pad13.setExpression("Length", "Params.pad13_length")

sketch17 = body.newObject("Sketcher::SketchObject", "Sketch016")
sketch17.AttachmentSupport = (doc.getObject("YZ_Plane"), [""])
sketch17.MapMode = "FlatFace"
sketch17.AttachmentOffset = App.Placement(V(0, 0, -82.124661), App.Rotation())
add_polygon(sketch17, [(115, 31), (4, 31), (4, 27), (115, 27)])
sketch17.addConstraint(Sketcher.Constraint("Horizontal", 0))
sketch17.addConstraint(Sketcher.Constraint("Vertical", 1))
sketch17.addConstraint(Sketcher.Constraint("Horizontal", 2))
sketch17.addConstraint(Sketcher.Constraint("Vertical", 3))
sketch17.addConstraint(Sketcher.Constraint("DistanceX", 0, 2, 0, 1, Q("111 mm")))
sketch17.addConstraint(Sketcher.Constraint("DistanceY", 1, 2, 1, 1, Q("4 mm")))
sketch17.addConstraint(Sketcher.Constraint("DistanceX", -1, 1, 0, 2, Q("4 mm")))
sketch17.addConstraint(Sketcher.Constraint("DistanceY", -1, 1, 0, 2, Q("31.024932 mm")))
sketch17.setExpression("Constraints[8]", "Params.sketch17_width")
sketch17.setExpression("Constraints[9]", "Params.sketch17_height")
pad14 = body.newObject("PartDesign::Pad", "Pad013")
pad14.Profile = sketch17
pad14.setExpression("Length", "Params.pad14_length")

doc.recompute()
